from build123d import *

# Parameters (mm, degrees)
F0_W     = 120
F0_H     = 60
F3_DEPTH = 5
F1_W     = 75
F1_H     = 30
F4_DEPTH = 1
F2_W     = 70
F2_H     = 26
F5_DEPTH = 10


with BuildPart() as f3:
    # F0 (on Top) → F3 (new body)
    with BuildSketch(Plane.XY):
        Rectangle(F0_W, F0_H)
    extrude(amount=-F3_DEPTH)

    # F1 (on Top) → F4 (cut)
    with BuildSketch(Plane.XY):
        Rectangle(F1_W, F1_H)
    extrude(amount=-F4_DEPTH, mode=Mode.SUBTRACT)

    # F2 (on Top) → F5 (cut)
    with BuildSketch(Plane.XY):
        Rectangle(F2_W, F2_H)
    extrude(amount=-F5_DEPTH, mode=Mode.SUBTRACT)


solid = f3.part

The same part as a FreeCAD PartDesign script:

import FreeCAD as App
import Part
import Sketcher
Q = App.Units.Quantity

doc = App.newDocument("Part")
body = doc.addObject("PartDesign::Body", "Body")

# Sketch on XY plane
sketch1 = body.newObject("Sketcher::SketchObject", "Sketch")
sketch1.AttachmentSupport = (doc.getObject("XY_Plane"), [""])
sketch1.MapMode = "FlatFace"
sketch1.addGeometry(Part.LineSegment(App.Vector(-60, 30, 0), App.Vector(-60, -30, 0)), False)
sketch1.addGeometry(Part.LineSegment(App.Vector(-60, -30, 0), App.Vector(60, -30, 0)), False)
sketch1.addGeometry(Part.LineSegment(App.Vector(60, -30, 0), App.Vector(60, 30, 0)), False)
sketch1.addGeometry(Part.LineSegment(App.Vector(60, 30, 0), App.Vector(-60, 30, 0)), False)
sketch1.addConstraint(Sketcher.Constraint("Coincident", 0, 2, 1, 1))
sketch1.addConstraint(Sketcher.Constraint("Coincident", 1, 2, 2, 1))
sketch1.addConstraint(Sketcher.Constraint("Coincident", 2, 2, 3, 1))
sketch1.addConstraint(Sketcher.Constraint("Coincident", 3, 2, 0, 1))
sketch1.addConstraint(Sketcher.Constraint("Vertical", 0))
sketch1.addConstraint(Sketcher.Constraint("Horizontal", 1))
sketch1.addConstraint(Sketcher.Constraint("Vertical", 2))
sketch1.addConstraint(Sketcher.Constraint("Horizontal", 3))
sketch1.addConstraint(Sketcher.Constraint("Symmetric", 0, 2, 2, 2, -1, 1))
sketch1.addConstraint(Sketcher.Constraint("DistanceX", 1, 1, 1, 2, Q("120 mm")))
sketch1.addConstraint(Sketcher.Constraint("DistanceY", 0, 2, 0, 1, Q("60 mm")))
pad1 = body.newObject("PartDesign::Pad", "Pad")
pad1.Profile = sketch1
pad1.Length = 5
pad1.Reversed = True

# Sketch on XY plane
sketch2 = body.newObject("Sketcher::SketchObject", "Sketch001")
sketch2.AttachmentSupport = (doc.getObject("XY_Plane"), [""])
sketch2.MapMode = "FlatFace"
sketch2.addGeometry(Part.LineSegment(App.Vector(-37.5, 15, 0), App.Vector(-37.5, -15, 0)), False)
sketch2.addGeometry(Part.LineSegment(App.Vector(-37.5, -15, 0), App.Vector(37.5, -15, 0)), False)
sketch2.addGeometry(Part.LineSegment(App.Vector(37.5, -15, 0), App.Vector(37.5, 15, 0)), False)
sketch2.addGeometry(Part.LineSegment(App.Vector(37.5, 15, 0), App.Vector(-37.5, 15, 0)), False)
sketch2.addConstraint(Sketcher.Constraint("Coincident", 0, 2, 1, 1))
sketch2.addConstraint(Sketcher.Constraint("Coincident", 1, 2, 2, 1))
sketch2.addConstraint(Sketcher.Constraint("Coincident", 2, 2, 3, 1))
sketch2.addConstraint(Sketcher.Constraint("Coincident", 3, 2, 0, 1))
sketch2.addConstraint(Sketcher.Constraint("Vertical", 0))
sketch2.addConstraint(Sketcher.Constraint("Horizontal", 1))
sketch2.addConstraint(Sketcher.Constraint("Vertical", 2))
sketch2.addConstraint(Sketcher.Constraint("Horizontal", 3))
sketch2.addConstraint(Sketcher.Constraint("Symmetric", 0, 2, 2, 2, -1, 1))
sketch2.addConstraint(Sketcher.Constraint("DistanceX", 1, 1, 1, 2, Q("75 mm")))
sketch2.addConstraint(Sketcher.Constraint("DistanceY", 0, 2, 0, 1, Q("30 mm")))
pocket1 = body.newObject("PartDesign::Pocket", "Pocket")
pocket1.Profile = sketch2
pocket1.Length = 1

# Sketch on XY plane
sketch3 = body.newObject("Sketcher::SketchObject", "Sketch002")
sketch3.AttachmentSupport = (doc.getObject("XY_Plane"), [""])
sketch3.MapMode = "FlatFace"
sketch3.addGeometry(Part.LineSegment(App.Vector(-35, 13, 0), App.Vector(-35, -13, 0)), False)
sketch3.addGeometry(Part.LineSegment(App.Vector(-35, -13, 0), App.Vector(35, -13, 0)), False)
sketch3.addGeometry(Part.LineSegment(App.Vector(35, -13, 0), App.Vector(35, 13, 0)), False)
sketch3.addGeometry(Part.LineSegment(App.Vector(35, 13, 0), App.Vector(-35, 13, 0)), False)
sketch3.addConstraint(Sketcher.Constraint("Coincident", 0, 2, 1, 1))
sketch3.addConstraint(Sketcher.Constraint("Coincident", 1, 2, 2, 1))
sketch3.addConstraint(Sketcher.Constraint("Coincident", 2, 2, 3, 1))
sketch3.addConstraint(Sketcher.Constraint("Coincident", 3, 2, 0, 1))
sketch3.addConstraint(Sketcher.Constraint("Vertical", 0))
sketch3.addConstraint(Sketcher.Constraint("Horizontal", 1))
sketch3.addConstraint(Sketcher.Constraint("Vertical", 2))
sketch3.addConstraint(Sketcher.Constraint("Horizontal", 3))
sketch3.addConstraint(Sketcher.Constraint("Symmetric", 0, 2, 2, 2, -1, 1))
sketch3.addConstraint(Sketcher.Constraint("DistanceX", 1, 1, 1, 2, Q("70 mm")))
sketch3.addConstraint(Sketcher.Constraint("DistanceY", 0, 2, 0, 1, Q("26 mm")))
pocket2 = body.newObject("PartDesign::Pocket", "Pocket001")
pocket2.Profile = sketch3
pocket2.Length = 10

doc.recompute()
